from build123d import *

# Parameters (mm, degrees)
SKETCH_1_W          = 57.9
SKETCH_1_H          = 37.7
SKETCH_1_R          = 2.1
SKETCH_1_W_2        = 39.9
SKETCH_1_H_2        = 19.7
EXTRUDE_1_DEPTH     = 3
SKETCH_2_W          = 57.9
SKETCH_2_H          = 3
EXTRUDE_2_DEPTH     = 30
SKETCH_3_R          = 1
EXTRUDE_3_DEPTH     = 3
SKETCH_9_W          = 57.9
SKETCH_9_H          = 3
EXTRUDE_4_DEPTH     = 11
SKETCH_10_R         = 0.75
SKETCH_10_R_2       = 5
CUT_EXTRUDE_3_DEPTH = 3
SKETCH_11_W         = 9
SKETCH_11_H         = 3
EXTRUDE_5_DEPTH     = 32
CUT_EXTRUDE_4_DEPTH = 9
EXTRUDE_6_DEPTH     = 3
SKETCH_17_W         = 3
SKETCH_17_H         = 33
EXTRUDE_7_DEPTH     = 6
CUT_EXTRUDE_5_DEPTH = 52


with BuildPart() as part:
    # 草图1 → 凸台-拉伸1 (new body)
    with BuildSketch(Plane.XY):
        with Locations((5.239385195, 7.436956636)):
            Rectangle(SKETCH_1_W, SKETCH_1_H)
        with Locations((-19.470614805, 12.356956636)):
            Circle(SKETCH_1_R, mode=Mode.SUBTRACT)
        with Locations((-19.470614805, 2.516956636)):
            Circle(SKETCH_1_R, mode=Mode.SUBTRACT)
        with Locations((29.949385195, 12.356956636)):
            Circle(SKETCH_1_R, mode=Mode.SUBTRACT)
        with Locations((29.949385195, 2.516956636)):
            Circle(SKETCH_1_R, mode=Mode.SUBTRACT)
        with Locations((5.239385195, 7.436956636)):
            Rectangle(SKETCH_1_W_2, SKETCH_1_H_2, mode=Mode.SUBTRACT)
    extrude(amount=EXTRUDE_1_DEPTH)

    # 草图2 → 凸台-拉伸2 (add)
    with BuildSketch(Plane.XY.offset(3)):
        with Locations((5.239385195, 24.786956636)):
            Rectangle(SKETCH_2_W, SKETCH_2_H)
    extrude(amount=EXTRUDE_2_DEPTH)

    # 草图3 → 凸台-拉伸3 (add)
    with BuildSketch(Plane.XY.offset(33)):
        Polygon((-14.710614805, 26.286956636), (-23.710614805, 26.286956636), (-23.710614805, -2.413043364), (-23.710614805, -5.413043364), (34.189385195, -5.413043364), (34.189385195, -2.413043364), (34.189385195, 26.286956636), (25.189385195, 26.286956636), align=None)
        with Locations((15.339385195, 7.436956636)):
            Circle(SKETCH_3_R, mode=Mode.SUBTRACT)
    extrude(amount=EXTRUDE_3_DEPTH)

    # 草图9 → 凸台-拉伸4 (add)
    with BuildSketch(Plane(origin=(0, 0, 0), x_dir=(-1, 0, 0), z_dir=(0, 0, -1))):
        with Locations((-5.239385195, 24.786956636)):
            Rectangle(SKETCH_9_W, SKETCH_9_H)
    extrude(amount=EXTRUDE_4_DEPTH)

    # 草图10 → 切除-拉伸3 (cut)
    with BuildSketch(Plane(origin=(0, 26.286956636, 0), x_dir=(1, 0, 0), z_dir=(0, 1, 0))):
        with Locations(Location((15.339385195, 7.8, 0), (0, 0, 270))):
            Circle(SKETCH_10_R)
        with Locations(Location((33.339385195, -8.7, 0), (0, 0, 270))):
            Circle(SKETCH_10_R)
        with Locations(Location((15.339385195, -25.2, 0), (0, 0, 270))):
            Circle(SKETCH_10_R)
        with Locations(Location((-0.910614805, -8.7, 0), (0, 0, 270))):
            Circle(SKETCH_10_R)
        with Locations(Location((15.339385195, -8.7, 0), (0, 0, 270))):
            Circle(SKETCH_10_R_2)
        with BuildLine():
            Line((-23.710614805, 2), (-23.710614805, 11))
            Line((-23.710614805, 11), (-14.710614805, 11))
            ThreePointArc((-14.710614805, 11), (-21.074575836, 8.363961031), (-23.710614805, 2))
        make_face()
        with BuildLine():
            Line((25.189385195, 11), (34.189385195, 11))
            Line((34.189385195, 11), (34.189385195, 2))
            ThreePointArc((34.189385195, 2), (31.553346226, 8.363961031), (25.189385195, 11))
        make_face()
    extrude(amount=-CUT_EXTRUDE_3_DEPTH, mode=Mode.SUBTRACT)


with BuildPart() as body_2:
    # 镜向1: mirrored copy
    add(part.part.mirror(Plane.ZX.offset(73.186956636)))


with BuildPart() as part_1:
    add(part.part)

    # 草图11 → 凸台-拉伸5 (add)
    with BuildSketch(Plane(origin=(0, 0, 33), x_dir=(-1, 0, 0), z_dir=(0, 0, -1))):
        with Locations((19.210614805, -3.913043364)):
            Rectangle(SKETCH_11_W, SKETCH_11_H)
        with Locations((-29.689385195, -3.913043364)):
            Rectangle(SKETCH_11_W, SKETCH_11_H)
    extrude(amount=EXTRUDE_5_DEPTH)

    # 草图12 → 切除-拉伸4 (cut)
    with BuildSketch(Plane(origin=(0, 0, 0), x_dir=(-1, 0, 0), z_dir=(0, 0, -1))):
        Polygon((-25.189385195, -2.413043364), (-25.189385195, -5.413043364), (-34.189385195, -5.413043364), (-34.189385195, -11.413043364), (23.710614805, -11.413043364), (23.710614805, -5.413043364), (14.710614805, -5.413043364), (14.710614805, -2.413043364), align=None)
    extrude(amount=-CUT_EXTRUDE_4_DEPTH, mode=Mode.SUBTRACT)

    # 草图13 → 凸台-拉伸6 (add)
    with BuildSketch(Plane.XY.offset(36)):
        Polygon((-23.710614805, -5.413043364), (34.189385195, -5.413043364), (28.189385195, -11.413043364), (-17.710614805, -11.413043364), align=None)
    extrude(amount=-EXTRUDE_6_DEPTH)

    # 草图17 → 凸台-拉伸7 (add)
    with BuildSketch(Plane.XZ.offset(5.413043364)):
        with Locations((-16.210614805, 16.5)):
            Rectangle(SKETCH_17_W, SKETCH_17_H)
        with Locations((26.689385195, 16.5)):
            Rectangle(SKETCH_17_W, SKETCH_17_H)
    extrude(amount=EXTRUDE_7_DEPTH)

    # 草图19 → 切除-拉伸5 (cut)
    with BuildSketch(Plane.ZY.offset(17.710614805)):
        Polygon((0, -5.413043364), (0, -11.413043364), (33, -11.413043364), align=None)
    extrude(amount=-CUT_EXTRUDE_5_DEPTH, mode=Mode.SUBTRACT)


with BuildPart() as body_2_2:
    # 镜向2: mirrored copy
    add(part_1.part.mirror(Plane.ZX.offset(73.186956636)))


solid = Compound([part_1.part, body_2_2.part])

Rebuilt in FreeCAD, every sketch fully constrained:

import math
import FreeCAD as App
import Part
import Sketcher

V = App.Vector

doc = App.newDocument("Part")
body = doc.addObject("PartDesign::Body", "Body")

sketch1 = body.newObject("Sketcher::SketchObject", "Sketch")
sketch1.AttachmentSupport = (doc.getObject("XY_Plane"), [""])
sketch1.MapMode = "FlatFace"
sketch1.addGeometry([
    Part.LineSegment(V(-23.7, 26.3, 0), V(-23.7, -11.4, 0)),
    Part.LineSegment(V(-23.7, -11.4, 0), V(34.2, -11.4, 0)),
    Part.LineSegment(V(34.2, -11.4, 0), V(34.2, 26.3, 0)),
    Part.LineSegment(V(34.2, 26.3, 0), V(-23.7, 26.3, 0)),
    Part.Circle(V(-19.5, 2.5, 0), V(0, 0, 1), 2.1),
    Part.Circle(V(29.9, 2.5, 0), V(0, 0, 1), 2.1),
    Part.Circle(V(-19.5, 12.4, 0), V(0, 0, 1), 2.1),
    Part.LineSegment(V(25.2, -2.4, 0), V(-14.7, -2.4, 0)),
    Part.LineSegment(V(-14.7, -2.4, 0), V(-14.7, 17.3, 0)),
    Part.LineSegment(V(-14.7, 17.3, 0), V(25.2, 17.3, 0)),
    Part.LineSegment(V(25.2, 17.3, 0), V(25.2, -2.4, 0)),
    Part.Circle(V(29.9, 12.4, 0), V(0, 0, 1), 2.1),
], False)
sketch1.addConstraint([
    Sketcher.Constraint("Coincident", 0, 2, 1, 1),
    Sketcher.Constraint("Coincident", 1, 2, 2, 1),
    Sketcher.Constraint("Coincident", 2, 2, 3, 1),
    Sketcher.Constraint("Coincident", 3, 2, 0, 1),
    Sketcher.Constraint("Coincident", 7, 2, 8, 1),
    Sketcher.Constraint("Coincident", 8, 2, 9, 1),
    Sketcher.Constraint("Coincident", 9, 2, 10, 1),
    Sketcher.Constraint("Coincident", 10, 2, 7, 1),
    Sketcher.Constraint("Vertical", 0),
    Sketcher.Constraint("Horizontal", 1),
    Sketcher.Constraint("Vertical", 2),
    Sketcher.Constraint("Horizontal", 3),
    Sketcher.Constraint("Horizontal", 7),
    Sketcher.Constraint("Vertical", 8),
    Sketcher.Constraint("Horizontal", 9),
    Sketcher.Constraint("Vertical", 10),
    Sketcher.Constraint("Equal", 4, 5),
    Sketcher.Constraint("Equal", 5, 6),
    Sketcher.Constraint("Equal", 6, 11),
    Sketcher.Constraint("Horizontal", 4, 3, 5, 3),
    Sketcher.Constraint("Horizontal", 6, 3, 11, 3),
    Sketcher.Constraint("Vertical", 4, 3, 6, 3),
    Sketcher.Constraint("Vertical", 5, 3, 11, 3),
    Sketcher.Constraint("Diameter", 4, 4.2),
    Sketcher.Constraint("DistanceX", 1, 1, 1, 2, 57.9),
    Sketcher.Constraint("DistanceX", 7, 2, 7, 1, 39.9),
    Sketcher.Constraint("DistanceY", 0, 2, 0, 1, 37.7),
    Sketcher.Constraint("DistanceY", 8, 1, 8, 2, 19.7),
    Sketcher.Constraint("DistanceX", 0, 2, 7, 2, 9.0),
    Sketcher.Constraint("DistanceY", 0, 2, 7, 2, 9.0),
    Sketcher.Constraint("DistanceX", 4, 3, 5, 3, 49.42),
    Sketcher.Constraint("DistanceY", 4, 3, 6, 3, 9.84),
    Sketcher.Constraint("DistanceX", 0, 2, 4, 3, 4.24),
    Sketcher.Constraint("DistanceY", 0, 2, 4, 3, 13.93),
    Sketcher.Constraint("DistanceX", 4, 3, -1, 1, 19.470615),
    Sketcher.Constraint("DistanceY", -1, 1, 4, 3, 2.516957),
])
pad1 = body.newObject("PartDesign::Pad", "Pad")
pad1.Profile = sketch1
pad1.Length = 3

sketch2 = body.newObject("Sketcher::SketchObject", "Sketch001")
sketch2.AttachmentSupport = (doc.getObject("XY_Plane"), [""])
sketch2.MapMode = "FlatFace"
sketch2.AttachmentOffset = App.Placement(V(0, 0, 3), App.Rotation())
sketch2.addGeometry([
    Part.LineSegment(V(-23.7, 26.3, 0), V(-23.7, 23.3, 0)),
    Part.LineSegment(V(-23.7, 23.3, 0), V(34.2, 23.3, 0)),
    Part.LineSegment(V(34.2, 23.3, 0), V(34.2, 26.3, 0)),
    Part.LineSegment(V(34.2, 26.3, 0), V(-23.7, 26.3, 0)),
], False)
sketch2.addConstraint([
    Sketcher.Constraint("Coincident", 0, 2, 1, 1),
    Sketcher.Constraint("Coincident", 1, 2, 2, 1),
    Sketcher.Constraint("Coincident", 2, 2, 3, 1),
    Sketcher.Constraint("Coincident", 3, 2, 0, 1),
    Sketcher.Constraint("Vertical", 0),
    Sketcher.Constraint("Horizontal", 1),
    Sketcher.Constraint("Vertical", 2),
    Sketcher.Constraint("Horizontal", 3),
    Sketcher.Constraint("DistanceY", 0, 2, 0, 1, 3.0),
    Sketcher.Constraint("DistanceX", 1, 1, 1, 2, 57.9),
    Sketcher.Constraint("DistanceX", 0, 2, -1, 1, 23.710615),
    Sketcher.Constraint("DistanceY", -1, 1, 0, 2, 23.286957),
])
pad2 = body.newObject("PartDesign::Pad", "Pad001")
pad2.Profile = sketch2
pad2.Length = 30

sketch3 = body.newObject("Sketcher::SketchObject", "Sketch002")
sketch3.AttachmentSupport = (doc.getObject("XY_Plane"), [""])
sketch3.MapMode = "FlatFace"
sketch3.AttachmentOffset = App.Placement(V(0, 0, 33), App.Rotation())
sketch3.addGeometry([
    Part.LineSegment(V(-23.7, 26.3, 0), V(-23.7, -5.4, 0)),
    Part.LineSegment(V(-23.7, -5.4, 0), V(34.2, -5.4, 0)),
    Part.LineSegment(V(34.2, -5.4, 0), V(34.2, 26.3, 0)),
    Part.LineSegment(V(34.2, 26.3, 0), V(-23.7, 26.3, 0)),
    Part.Circle(V(15.3, 7.4, 0), V(0, 0, 1), 1),
], False)
sketch3.addConstraint([
    Sketcher.Constraint("Coincident", 0, 2, 1, 1),
    Sketcher.Constraint("Coincident", 1, 2, 2, 1),
    Sketcher.Constraint("Coincident", 2, 2, 3, 1),
    Sketcher.Constraint("Coincident", 3, 2, 0, 1),
    Sketcher.Constraint("Vertical", 0),
    Sketcher.Constraint("Horizontal", 1),
    Sketcher.Constraint("Vertical", 2),
    Sketcher.Constraint("Horizontal", 3),
    Sketcher.Constraint("Diameter", 4, 2.0),
    Sketcher.Constraint("DistanceX", 1, 1, 1, 2, 57.9),
    Sketcher.Constraint("DistanceY", 0, 2, 0, 1, 31.7),
    Sketcher.Constraint("DistanceX", 0, 2, 4, 3, 39.05),
    Sketcher.Constraint("DistanceY", 0, 2, 4, 3, 12.85),
    Sketcher.Constraint("DistanceX", -1, 1, 4, 3, 15.339385),
    Sketcher.Constraint("DistanceY", -1, 1, 4, 3, 7.436957),
])
pad3 = body.newObject("PartDesign::Pad", "Pad002")
pad3.Profile = sketch3
pad3.Length = 3

sketch4 = body.newObject("Sketcher::SketchObject", "Sketch003")
sketch4.AttachmentSupport = (doc.getObject("XY_Plane"), [""])
sketch4.MapMode = "FlatFace"
sketch4.addGeometry([
    Part.LineSegment(V(34.2, 26.3, 0), V(34.2, 23.3, 0)),
    Part.LineSegment(V(34.2, 23.3, 0), V(-23.7, 23.3, 0)),
    Part.LineSegment(V(-23.7, 23.3, 0), V(-23.7, 26.3, 0)),
    Part.LineSegment(V(-23.7, 26.3, 0), V(34.2, 26.3, 0)),
], False)
sketch4.addConstraint([
    Sketcher.Constraint("Coincident", 0, 2, 1, 1),
    Sketcher.Constraint("Coincident", 1, 2, 2, 1),
    Sketcher.Constraint("Coincident", 2, 2, 3, 1),
    Sketcher.Constraint("Coincident", 3, 2, 0, 1),
    Sketcher.Constraint("Vertical", 0),
    Sketcher.Constraint("Horizontal", 1),
    Sketcher.Constraint("Vertical", 2),
    Sketcher.Constraint("Horizontal", 3),
    Sketcher.Constraint("DistanceY", 0, 2, 0, 1, 3.0),
    Sketcher.Constraint("DistanceX", 1, 2, 1, 1, 57.9),
    Sketcher.Constraint("DistanceX", -1, 1, 0, 2, 34.189385),
    Sketcher.Constraint("DistanceY", -1, 1, 0, 2, 23.286957),
])
pad4 = body.newObject("PartDesign::Pad", "Pad003")
pad4.Profile = sketch4
pad4.Length = 11
pad4.Reversed = True

sketch5 = body.newObject("Sketcher::SketchObject", "Sketch004")
sketch5.AttachmentSupport = (doc.getObject("XZ_Plane"), [""])
sketch5.MapMode = "FlatFace"
sketch5.AttachmentOffset = App.Placement(V(0, 0, -26.286957), App.Rotation())
sketch5.addGeometry([
    Part.Circle(V(15.3, -7.8, 0), V(0, 0, 1), 0.8),
    Part.Circle(V(33.3, 8.7, 0), V(0, 0, 1), 0.8),
    Part.Circle(V(15.3, 25.2, 0), V(0, 0, 1), 0.8),
    Part.Circle(V(-0.9, 8.7, 0), V(0, 0, 1), 0.8),
    Part.Circle(V(15.3, 8.7, 0), V(0, 0, 1), 5),
    Part.LineSegment(V(-23.7, -11, 0), V(-23.7, -2, 0)),
    Part.ArcOfCircle(Part.Circle(V(-14.7, -2, 0), V(0, 0, 1), 9), math.radians(180), math.radians(270)),
    Part.LineSegment(V(-14.7, -11, 0), V(-23.7, -11, 0)),
    Part.LineSegment(V(34.2, -11, 0), V(25.2, -11, 0)),
    Part.ArcOfCircle(Part.Circle(V(25.2, -2, 0), V(0, 0, 1), 9), math.radians(-90), math.radians(0)),
    Part.LineSegment(V(34.2, -2, 0), V(34.2, -11, 0)),
], False)
sketch5.addConstraint([
    Sketcher.Constraint("Tangent", 5, 2, 6, 1),
    Sketcher.Constraint("Tangent", 6, 2, 7, 1),
    Sketcher.Constraint("Coincident", 7, 2, 5, 1),
    Sketcher.Constraint("Tangent", 8, 2, 9, 1),
    Sketcher.Constraint("Tangent", 9, 2, 10, 1),
    Sketcher.Constraint("Coincident", 10, 2, 8, 1),
    Sketcher.Constraint("Vertical", 5),
    Sketcher.Constraint("Horizontal", 7),
    Sketcher.Constraint("Horizontal", 8),
    Sketcher.Constraint("Vertical", 10),
    Sketcher.Constraint("Equal", 0, 1),
    Sketcher.Constraint("Equal", 1, 2),
    Sketcher.Constraint("Equal", 2, 3),
    Sketcher.Constraint("Equal", 6, 9),
    Sketcher.Constraint("Horizontal", 1, 3, 3, 3),
    Sketcher.Constraint("Horizontal", 3, 3, 4, 3),
    Sketcher.Constraint("Horizontal", 6, 3, 9, 3),
    Sketcher.Constraint("Vertical", 0, 3, 2, 3),
    Sketcher.Constraint("Vertical", 2, 3, 4, 3),
    Sketcher.Constraint("Diameter", 4, 10.0),
    Sketcher.Constraint("Radius", 6, 9.0),
    Sketcher.Constraint("Diameter", 0, 1.5),
    Sketcher.Constraint("DistanceY", 6, 3, -1, 1, 2.0),
    Sketcher.Constraint("DistanceX", 0, 3, 1, 3, 18.0),
    Sketcher.Constraint("DistanceY", 0, 3, 2, 3, 33.0),
    Sketcher.Constraint("DistanceY", 0, 3, -1, 1, 7.8),
    Sketcher.Constraint("DistanceY", -1, 1, 1, 3, 8.7),
    Sketcher.Constraint("DistanceX", 6, 3, 3, 3, 13.8),
    Sketcher.Constraint("DistanceX", 3, 3, 9, 3, 26.1),
    Sketcher.Constraint("DistanceX", 3, 3, 0, 3, 16.25),
    Sketcher.Constraint("DistanceX", -1, 1, 0, 3, 15.339385),
])
pocket1 = body.newObject("PartDesign::Pocket", "Pocket")
pocket1.Profile = sketch5
pocket1.Length = 3
pocket1.Reversed = True
body2 = doc.addObject("PartDesign::Body", "Body001")
doc.recompute()

mirroring = doc.addObject("Part::Mirroring", "Mirroring")
mirroring.Source = body
mirroring.Base = V(0, 73.186957, 0)
mirroring.Normal = V(0, 1, 0)
body2.BaseFeature = mirroring
doc.recompute()

sketch6 = body.newObject("Sketcher::SketchObject", "Sketch005")
sketch6.AttachmentSupport = (doc.getObject("XY_Plane"), [""])
sketch6.MapMode = "FlatFace"
sketch6.AttachmentOffset = App.Placement(V(0, 0, 33), App.Rotation())
sketch6.addGeometry([
    Part.LineSegment(V(-14.7, -2.4, 0), V(-14.7, -5.4, 0)),
    Part.LineSegment(V(-14.7, -5.4, 0), V(-23.7, -5.4, 0)),
    Part.LineSegment(V(-23.7, -5.4, 0), V(-23.7, -2.4, 0)),
    Part.LineSegment(V(-23.7, -2.4, 0), V(-14.7, -2.4, 0)),
    Part.LineSegment(V(34.2, -2.4, 0), V(34.2, -5.4, 0)),
    Part.LineSegment(V(34.2, -5.4, 0), V(25.2, -5.4, 0)),
    Part.LineSegment(V(25.2, -5.4, 0), V(25.2, -2.4, 0)),
    Part.LineSegment(V(25.2, -2.4, 0), V(34.2, -2.4, 0)),
], False)
sketch6.addConstraint([
    Sketcher.Constraint("Coincident", 0, 2, 1, 1),
    Sketcher.Constraint("Coincident", 1, 2, 2, 1),
    Sketcher.Constraint("Coincident", 2, 2, 3, 1),
    Sketcher.Constraint("Coincident", 3, 2, 0, 1),
    Sketcher.Constraint("Coincident", 4, 2, 5, 1),
    Sketcher.Constraint("Coincident", 5, 2, 6, 1),
    Sketcher.Constraint("Coincident", 6, 2, 7, 1),
    Sketcher.Constraint("Coincident", 7, 2, 4, 1),
    Sketcher.Constraint("Vertical", 0),
    Sketcher.Constraint("Horizontal", 1),
    Sketcher.Constraint("Vertical", 2),
    Sketcher.Constraint("Horizontal", 3),
    Sketcher.Constraint("Vertical", 4),
    Sketcher.Constraint("Horizontal", 5),
    Sketcher.Constraint("Vertical", 6),
    Sketcher.Constraint("Horizontal", 7),
    Sketcher.Constraint("Horizontal", 1, 2, 4, 2),
    Sketcher.Constraint("Horizontal", 3, 2, 6, 2),
    Sketcher.Constraint("Equal", 3, 5),
    Sketcher.Constraint("DistanceX", 1, 2, 1, 1, 9.0),
    Sketcher.Constraint("DistanceY", 0, 2, 0, 1, 3.0),
    Sketcher.Constraint("DistanceX", 0, 2, 4, 2, 48.9),
    Sketcher.Constraint("DistanceX", 0, 2, -1, 1, 14.710615),
    Sketcher.Constraint("DistanceY", 0, 2, -1, 1, 5.413043),
])
pad5 = body.newObject("PartDesign::Pad", "Pad004")
pad5.Profile = sketch6
pad5.Length = 32
pad5.Reversed = True

sketch7 = body.newObject("Sketcher::SketchObject", "Sketch006")
sketch7.AttachmentSupport = (doc.getObject("XY_Plane"), [""])
sketch7.MapMode = "FlatFace"
sketch7.addGeometry([
    Part.LineSegment(V(25.2, -2.4, 0), V(25.2, -5.4, 0)),
    Part.LineSegment(V(25.2, -5.4, 0), V(34.2, -5.4, 0)),
    Part.LineSegment(V(34.2, -5.4, 0), V(34.2, -11.4, 0)),
    Part.LineSegment(V(34.2, -11.4, 0), V(-23.7, -11.4, 0)),
    Part.LineSegment(V(-23.7, -11.4, 0), V(-23.7, -5.4, 0)),
    Part.LineSegment(V(-23.7, -5.4, 0), V(-14.7, -5.4, 0)),
    Part.LineSegment(V(-14.7, -5.4, 0), V(-14.7, -2.4, 0)),
    Part.LineSegment(V(-14.7, -2.4, 0), V(25.2, -2.4, 0)),
], False)
sketch7.addConstraint([
    Sketcher.Constraint("Coincident", 0, 2, 1, 1),
    Sketcher.Constraint("Coincident", 1, 2, 2, 1),
    Sketcher.Constraint("Coincident", 2, 2, 3, 1),
    Sketcher.Constraint("Coincident", 3, 2, 4, 1),
    Sketcher.Constraint("Coincident", 4, 2, 5, 1),
    Sketcher.Constraint("Coincident", 5, 2, 6, 1),
    Sketcher.Constraint("Coincident", 6, 2, 7, 1),
    Sketcher.Constraint("Coincident", 7, 2, 0, 1),
    Sketcher.Constraint("Vertical", 0),
    Sketcher.Constraint("Horizontal", 1),
    Sketcher.Constraint("Vertical", 2),
    Sketcher.Constraint("Horizontal", 3),
    Sketcher.Constraint("Vertical", 4),
    Sketcher.Constraint("Horizontal", 5),
    Sketcher.Constraint("Vertical", 6),
    Sketcher.Constraint("Horizontal", 7),
    Sketcher.Constraint("Horizontal", 1, 2, 4, 2),
    Sketcher.Constraint("Equal", 1, 5),
    Sketcher.Constraint("DistanceX", 1, 1, 1, 2, 9.0),
    Sketcher.Constraint("DistanceY", 0, 2, 0, 1, 3.0),
    Sketcher.Constraint("DistanceY", 2, 2, 2, 1, 6.0),
    Sketcher.Constraint("DistanceX", 3, 2, 3, 1, 57.9),
    Sketcher.Constraint("DistanceX", -1, 1, 0, 2, 25.189385),
    Sketcher.Constraint("DistanceY", 0, 2, -1, 1, 5.413043),
])
pocket2 = body.newObject("PartDesign::Pocket", "Pocket001")
pocket2.Profile = sketch7
pocket2.Length = 9
pocket2.Reversed = True

sketch8 = body.newObject("Sketcher::SketchObject", "Sketch007")
sketch8.AttachmentSupport = (doc.getObject("XY_Plane"), [""])
sketch8.MapMode = "FlatFace"
sketch8.AttachmentOffset = App.Placement(V(0, 0, 36), App.Rotation())
sketch8.addGeometry([
    Part.LineSegment(V(34, -5, 0), V(-24, -5, 0)),
    Part.LineSegment(V(-24, -5, 0), V(-18, -11, 0)),
    Part.LineSegment(V(-18, -11, 0), V(28, -11, 0)),
    Part.LineSegment(V(28, -11, 0), V(34, -5, 0)),
], False)
sketch8.addConstraint([
    Sketcher.Constraint("Coincident", 0, 2, 1, 1),
    Sketcher.Constraint("Coincident", 1, 2, 2, 1),
    Sketcher.Constraint("Coincident", 2, 2, 3, 1),
    Sketcher.Constraint("Coincident", 3, 2, 0, 1),
    Sketcher.Constraint("Horizontal", 0),
    Sketcher.Constraint("Horizontal", 2),
    Sketcher.Constraint("Perpendicular", 1, 3),
    Sketcher.Constraint("Equal", 1, 3),
    Sketcher.Constraint("DistanceX", 0, 2, 0, 1, 57.9),
    Sketcher.Constraint("DistanceX", 2, 1, 2, 2, 45.9),
    Sketcher.Constraint("DistanceX", 0, 2, -1, 1, 23.710615),
    Sketcher.Constraint("DistanceY", 0, 2, -1, 1, 5.413043),
])
pad6 = body.newObject("PartDesign::Pad", "Pad005")
pad6.Profile = sketch8
pad6.Length = 3
pad6.Reversed = True

sketch9 = body.newObject("Sketcher::SketchObject", "Sketch008")
sketch9.AttachmentSupport = (doc.getObject("XZ_Plane"), [""])
sketch9.MapMode = "FlatFace"
sketch9.AttachmentOffset = App.Placement(V(0, 0, 5.413043), App.Rotation())
sketch9.addGeometry([
    Part.LineSegment(V(-17.7, 33, 0), V(-17.7, 0, 0)),
    Part.LineSegment(V(-17.7, 0, 0), V(-14.7, 0, 0)),
    Part.LineSegment(V(-14.7, 0, 0), V(-14.7, 33, 0)),
    Part.LineSegment(V(-14.7, 33, 0), V(-17.7, 33, 0)),
    Part.LineSegment(V(25.2, 33, 0), V(25.2, 0, 0)),
    Part.LineSegment(V(25.2, 0, 0), V(28.2, 0, 0)),
    Part.LineSegment(V(28.2, 0, 0), V(28.2, 33, 0)),
    Part.LineSegment(V(28.2, 33, 0), V(25.2, 33, 0)),
], False)
sketch9.addConstraint([
    Sketcher.Constraint("Coincident", 0, 2, 1, 1),
    Sketcher.Constraint("Coincident", 1, 2, 2, 1),
    Sketcher.Constraint("Coincident", 2, 2, 3, 1),
    Sketcher.Constraint("Coincident", 3, 2, 0, 1),
    Sketcher.Constraint("Coincident", 4, 2, 5, 1),
    Sketcher.Constraint("Coincident", 5, 2, 6, 1),
    Sketcher.Constraint("Coincident", 6, 2, 7, 1),
    Sketcher.Constraint("Coincident", 7, 2, 4, 1),
    Sketcher.Constraint("Vertical", 0),
    Sketcher.Constraint("Horizontal", 1),
    Sketcher.Constraint("Vertical", 2),
    Sketcher.Constraint("Horizontal", 3),
    Sketcher.Constraint("Vertical", 4),
    Sketcher.Constraint("Horizontal", 5),
    Sketcher.Constraint("Vertical", 6),
    Sketcher.Constraint("Horizontal", 7),
    Sketcher.Constraint("PointOnObject", 0, 2, -1),
    Sketcher.Constraint("PointOnObject", 4, 2, -1),
    Sketcher.Constraint("Horizontal", 3, 2, 6, 2),
    Sketcher.Constraint("Equal", 3, 5),
    Sketcher.Constraint("DistanceX", 1, 1, 1, 2, 3.0),
    Sketcher.Constraint("DistanceY", 0, 2, 0, 1, 33.0),
    Sketcher.Constraint("DistanceX", 1, 2, 4, 2, 39.9),
    Sketcher.Constraint("DistanceX", 0, 2, -1, 1, 17.710615),
])
pad7 = body.newObject("PartDesign::Pad", "Pad006")
pad7.Profile = sketch9
pad7.Length = 6

sketch10 = body.newObject("Sketcher::SketchObject", "Sketch009")
sketch10.AttachmentSupport = (doc.getObject("YZ_Plane"), [""])
sketch10.MapMode = "FlatFace"
sketch10.AttachmentOffset = App.Placement(V(0, 0, -17.710615), App.Rotation())
sketch10.addGeometry([
    Part.LineSegment(V(-5, 0, 0), V(-11, 0, 0)),
    Part.LineSegment(V(-11, 0, 0), V(-11, 33, 0)),
    Part.LineSegment(V(-11, 33, 0), V(-5, 0, 0)),
], False)
sketch10.addConstraint([
    Sketcher.Constraint("Coincident", 0, 2, 1, 1),
    Sketcher.Constraint("Coincident", 1, 2, 2, 1),
    Sketcher.Constraint("Coincident", 2, 2, 0, 1),
    Sketcher.Constraint("Horizontal", 0),
    Sketcher.Constraint("Vertical", 1),
    Sketcher.Constraint("PointOnObject", 0, 2, -1),
    Sketcher.Constraint("DistanceX", 0, 2, 0, 1, 6.0),
    Sketcher.Constraint("DistanceY", 1, 1, 1, 2, 33.0),
    Sketcher.Constraint("DistanceX", 0, 2, -1, 1, 11.413043),
])
pocket3 = body.newObject("PartDesign::Pocket", "Pocket002")
pocket3.Profile = sketch10
pocket3.Length = 52
pocket3.Reversed = True
body3 = doc.addObject("PartDesign::Body", "Body002")
doc.recompute()

mirroring2 = doc.addObject("Part::Mirroring", "Mirroring001")
mirroring2.Source = body
mirroring2.Base = V(0, 73.186957, 0)
mirroring2.Normal = V(0, 1, 0)
body3.BaseFeature = mirroring2
doc.recompute()
body2.Visibility = False
mirroring.Visibility = False
mirroring2.Visibility = False

doc.recompute()
